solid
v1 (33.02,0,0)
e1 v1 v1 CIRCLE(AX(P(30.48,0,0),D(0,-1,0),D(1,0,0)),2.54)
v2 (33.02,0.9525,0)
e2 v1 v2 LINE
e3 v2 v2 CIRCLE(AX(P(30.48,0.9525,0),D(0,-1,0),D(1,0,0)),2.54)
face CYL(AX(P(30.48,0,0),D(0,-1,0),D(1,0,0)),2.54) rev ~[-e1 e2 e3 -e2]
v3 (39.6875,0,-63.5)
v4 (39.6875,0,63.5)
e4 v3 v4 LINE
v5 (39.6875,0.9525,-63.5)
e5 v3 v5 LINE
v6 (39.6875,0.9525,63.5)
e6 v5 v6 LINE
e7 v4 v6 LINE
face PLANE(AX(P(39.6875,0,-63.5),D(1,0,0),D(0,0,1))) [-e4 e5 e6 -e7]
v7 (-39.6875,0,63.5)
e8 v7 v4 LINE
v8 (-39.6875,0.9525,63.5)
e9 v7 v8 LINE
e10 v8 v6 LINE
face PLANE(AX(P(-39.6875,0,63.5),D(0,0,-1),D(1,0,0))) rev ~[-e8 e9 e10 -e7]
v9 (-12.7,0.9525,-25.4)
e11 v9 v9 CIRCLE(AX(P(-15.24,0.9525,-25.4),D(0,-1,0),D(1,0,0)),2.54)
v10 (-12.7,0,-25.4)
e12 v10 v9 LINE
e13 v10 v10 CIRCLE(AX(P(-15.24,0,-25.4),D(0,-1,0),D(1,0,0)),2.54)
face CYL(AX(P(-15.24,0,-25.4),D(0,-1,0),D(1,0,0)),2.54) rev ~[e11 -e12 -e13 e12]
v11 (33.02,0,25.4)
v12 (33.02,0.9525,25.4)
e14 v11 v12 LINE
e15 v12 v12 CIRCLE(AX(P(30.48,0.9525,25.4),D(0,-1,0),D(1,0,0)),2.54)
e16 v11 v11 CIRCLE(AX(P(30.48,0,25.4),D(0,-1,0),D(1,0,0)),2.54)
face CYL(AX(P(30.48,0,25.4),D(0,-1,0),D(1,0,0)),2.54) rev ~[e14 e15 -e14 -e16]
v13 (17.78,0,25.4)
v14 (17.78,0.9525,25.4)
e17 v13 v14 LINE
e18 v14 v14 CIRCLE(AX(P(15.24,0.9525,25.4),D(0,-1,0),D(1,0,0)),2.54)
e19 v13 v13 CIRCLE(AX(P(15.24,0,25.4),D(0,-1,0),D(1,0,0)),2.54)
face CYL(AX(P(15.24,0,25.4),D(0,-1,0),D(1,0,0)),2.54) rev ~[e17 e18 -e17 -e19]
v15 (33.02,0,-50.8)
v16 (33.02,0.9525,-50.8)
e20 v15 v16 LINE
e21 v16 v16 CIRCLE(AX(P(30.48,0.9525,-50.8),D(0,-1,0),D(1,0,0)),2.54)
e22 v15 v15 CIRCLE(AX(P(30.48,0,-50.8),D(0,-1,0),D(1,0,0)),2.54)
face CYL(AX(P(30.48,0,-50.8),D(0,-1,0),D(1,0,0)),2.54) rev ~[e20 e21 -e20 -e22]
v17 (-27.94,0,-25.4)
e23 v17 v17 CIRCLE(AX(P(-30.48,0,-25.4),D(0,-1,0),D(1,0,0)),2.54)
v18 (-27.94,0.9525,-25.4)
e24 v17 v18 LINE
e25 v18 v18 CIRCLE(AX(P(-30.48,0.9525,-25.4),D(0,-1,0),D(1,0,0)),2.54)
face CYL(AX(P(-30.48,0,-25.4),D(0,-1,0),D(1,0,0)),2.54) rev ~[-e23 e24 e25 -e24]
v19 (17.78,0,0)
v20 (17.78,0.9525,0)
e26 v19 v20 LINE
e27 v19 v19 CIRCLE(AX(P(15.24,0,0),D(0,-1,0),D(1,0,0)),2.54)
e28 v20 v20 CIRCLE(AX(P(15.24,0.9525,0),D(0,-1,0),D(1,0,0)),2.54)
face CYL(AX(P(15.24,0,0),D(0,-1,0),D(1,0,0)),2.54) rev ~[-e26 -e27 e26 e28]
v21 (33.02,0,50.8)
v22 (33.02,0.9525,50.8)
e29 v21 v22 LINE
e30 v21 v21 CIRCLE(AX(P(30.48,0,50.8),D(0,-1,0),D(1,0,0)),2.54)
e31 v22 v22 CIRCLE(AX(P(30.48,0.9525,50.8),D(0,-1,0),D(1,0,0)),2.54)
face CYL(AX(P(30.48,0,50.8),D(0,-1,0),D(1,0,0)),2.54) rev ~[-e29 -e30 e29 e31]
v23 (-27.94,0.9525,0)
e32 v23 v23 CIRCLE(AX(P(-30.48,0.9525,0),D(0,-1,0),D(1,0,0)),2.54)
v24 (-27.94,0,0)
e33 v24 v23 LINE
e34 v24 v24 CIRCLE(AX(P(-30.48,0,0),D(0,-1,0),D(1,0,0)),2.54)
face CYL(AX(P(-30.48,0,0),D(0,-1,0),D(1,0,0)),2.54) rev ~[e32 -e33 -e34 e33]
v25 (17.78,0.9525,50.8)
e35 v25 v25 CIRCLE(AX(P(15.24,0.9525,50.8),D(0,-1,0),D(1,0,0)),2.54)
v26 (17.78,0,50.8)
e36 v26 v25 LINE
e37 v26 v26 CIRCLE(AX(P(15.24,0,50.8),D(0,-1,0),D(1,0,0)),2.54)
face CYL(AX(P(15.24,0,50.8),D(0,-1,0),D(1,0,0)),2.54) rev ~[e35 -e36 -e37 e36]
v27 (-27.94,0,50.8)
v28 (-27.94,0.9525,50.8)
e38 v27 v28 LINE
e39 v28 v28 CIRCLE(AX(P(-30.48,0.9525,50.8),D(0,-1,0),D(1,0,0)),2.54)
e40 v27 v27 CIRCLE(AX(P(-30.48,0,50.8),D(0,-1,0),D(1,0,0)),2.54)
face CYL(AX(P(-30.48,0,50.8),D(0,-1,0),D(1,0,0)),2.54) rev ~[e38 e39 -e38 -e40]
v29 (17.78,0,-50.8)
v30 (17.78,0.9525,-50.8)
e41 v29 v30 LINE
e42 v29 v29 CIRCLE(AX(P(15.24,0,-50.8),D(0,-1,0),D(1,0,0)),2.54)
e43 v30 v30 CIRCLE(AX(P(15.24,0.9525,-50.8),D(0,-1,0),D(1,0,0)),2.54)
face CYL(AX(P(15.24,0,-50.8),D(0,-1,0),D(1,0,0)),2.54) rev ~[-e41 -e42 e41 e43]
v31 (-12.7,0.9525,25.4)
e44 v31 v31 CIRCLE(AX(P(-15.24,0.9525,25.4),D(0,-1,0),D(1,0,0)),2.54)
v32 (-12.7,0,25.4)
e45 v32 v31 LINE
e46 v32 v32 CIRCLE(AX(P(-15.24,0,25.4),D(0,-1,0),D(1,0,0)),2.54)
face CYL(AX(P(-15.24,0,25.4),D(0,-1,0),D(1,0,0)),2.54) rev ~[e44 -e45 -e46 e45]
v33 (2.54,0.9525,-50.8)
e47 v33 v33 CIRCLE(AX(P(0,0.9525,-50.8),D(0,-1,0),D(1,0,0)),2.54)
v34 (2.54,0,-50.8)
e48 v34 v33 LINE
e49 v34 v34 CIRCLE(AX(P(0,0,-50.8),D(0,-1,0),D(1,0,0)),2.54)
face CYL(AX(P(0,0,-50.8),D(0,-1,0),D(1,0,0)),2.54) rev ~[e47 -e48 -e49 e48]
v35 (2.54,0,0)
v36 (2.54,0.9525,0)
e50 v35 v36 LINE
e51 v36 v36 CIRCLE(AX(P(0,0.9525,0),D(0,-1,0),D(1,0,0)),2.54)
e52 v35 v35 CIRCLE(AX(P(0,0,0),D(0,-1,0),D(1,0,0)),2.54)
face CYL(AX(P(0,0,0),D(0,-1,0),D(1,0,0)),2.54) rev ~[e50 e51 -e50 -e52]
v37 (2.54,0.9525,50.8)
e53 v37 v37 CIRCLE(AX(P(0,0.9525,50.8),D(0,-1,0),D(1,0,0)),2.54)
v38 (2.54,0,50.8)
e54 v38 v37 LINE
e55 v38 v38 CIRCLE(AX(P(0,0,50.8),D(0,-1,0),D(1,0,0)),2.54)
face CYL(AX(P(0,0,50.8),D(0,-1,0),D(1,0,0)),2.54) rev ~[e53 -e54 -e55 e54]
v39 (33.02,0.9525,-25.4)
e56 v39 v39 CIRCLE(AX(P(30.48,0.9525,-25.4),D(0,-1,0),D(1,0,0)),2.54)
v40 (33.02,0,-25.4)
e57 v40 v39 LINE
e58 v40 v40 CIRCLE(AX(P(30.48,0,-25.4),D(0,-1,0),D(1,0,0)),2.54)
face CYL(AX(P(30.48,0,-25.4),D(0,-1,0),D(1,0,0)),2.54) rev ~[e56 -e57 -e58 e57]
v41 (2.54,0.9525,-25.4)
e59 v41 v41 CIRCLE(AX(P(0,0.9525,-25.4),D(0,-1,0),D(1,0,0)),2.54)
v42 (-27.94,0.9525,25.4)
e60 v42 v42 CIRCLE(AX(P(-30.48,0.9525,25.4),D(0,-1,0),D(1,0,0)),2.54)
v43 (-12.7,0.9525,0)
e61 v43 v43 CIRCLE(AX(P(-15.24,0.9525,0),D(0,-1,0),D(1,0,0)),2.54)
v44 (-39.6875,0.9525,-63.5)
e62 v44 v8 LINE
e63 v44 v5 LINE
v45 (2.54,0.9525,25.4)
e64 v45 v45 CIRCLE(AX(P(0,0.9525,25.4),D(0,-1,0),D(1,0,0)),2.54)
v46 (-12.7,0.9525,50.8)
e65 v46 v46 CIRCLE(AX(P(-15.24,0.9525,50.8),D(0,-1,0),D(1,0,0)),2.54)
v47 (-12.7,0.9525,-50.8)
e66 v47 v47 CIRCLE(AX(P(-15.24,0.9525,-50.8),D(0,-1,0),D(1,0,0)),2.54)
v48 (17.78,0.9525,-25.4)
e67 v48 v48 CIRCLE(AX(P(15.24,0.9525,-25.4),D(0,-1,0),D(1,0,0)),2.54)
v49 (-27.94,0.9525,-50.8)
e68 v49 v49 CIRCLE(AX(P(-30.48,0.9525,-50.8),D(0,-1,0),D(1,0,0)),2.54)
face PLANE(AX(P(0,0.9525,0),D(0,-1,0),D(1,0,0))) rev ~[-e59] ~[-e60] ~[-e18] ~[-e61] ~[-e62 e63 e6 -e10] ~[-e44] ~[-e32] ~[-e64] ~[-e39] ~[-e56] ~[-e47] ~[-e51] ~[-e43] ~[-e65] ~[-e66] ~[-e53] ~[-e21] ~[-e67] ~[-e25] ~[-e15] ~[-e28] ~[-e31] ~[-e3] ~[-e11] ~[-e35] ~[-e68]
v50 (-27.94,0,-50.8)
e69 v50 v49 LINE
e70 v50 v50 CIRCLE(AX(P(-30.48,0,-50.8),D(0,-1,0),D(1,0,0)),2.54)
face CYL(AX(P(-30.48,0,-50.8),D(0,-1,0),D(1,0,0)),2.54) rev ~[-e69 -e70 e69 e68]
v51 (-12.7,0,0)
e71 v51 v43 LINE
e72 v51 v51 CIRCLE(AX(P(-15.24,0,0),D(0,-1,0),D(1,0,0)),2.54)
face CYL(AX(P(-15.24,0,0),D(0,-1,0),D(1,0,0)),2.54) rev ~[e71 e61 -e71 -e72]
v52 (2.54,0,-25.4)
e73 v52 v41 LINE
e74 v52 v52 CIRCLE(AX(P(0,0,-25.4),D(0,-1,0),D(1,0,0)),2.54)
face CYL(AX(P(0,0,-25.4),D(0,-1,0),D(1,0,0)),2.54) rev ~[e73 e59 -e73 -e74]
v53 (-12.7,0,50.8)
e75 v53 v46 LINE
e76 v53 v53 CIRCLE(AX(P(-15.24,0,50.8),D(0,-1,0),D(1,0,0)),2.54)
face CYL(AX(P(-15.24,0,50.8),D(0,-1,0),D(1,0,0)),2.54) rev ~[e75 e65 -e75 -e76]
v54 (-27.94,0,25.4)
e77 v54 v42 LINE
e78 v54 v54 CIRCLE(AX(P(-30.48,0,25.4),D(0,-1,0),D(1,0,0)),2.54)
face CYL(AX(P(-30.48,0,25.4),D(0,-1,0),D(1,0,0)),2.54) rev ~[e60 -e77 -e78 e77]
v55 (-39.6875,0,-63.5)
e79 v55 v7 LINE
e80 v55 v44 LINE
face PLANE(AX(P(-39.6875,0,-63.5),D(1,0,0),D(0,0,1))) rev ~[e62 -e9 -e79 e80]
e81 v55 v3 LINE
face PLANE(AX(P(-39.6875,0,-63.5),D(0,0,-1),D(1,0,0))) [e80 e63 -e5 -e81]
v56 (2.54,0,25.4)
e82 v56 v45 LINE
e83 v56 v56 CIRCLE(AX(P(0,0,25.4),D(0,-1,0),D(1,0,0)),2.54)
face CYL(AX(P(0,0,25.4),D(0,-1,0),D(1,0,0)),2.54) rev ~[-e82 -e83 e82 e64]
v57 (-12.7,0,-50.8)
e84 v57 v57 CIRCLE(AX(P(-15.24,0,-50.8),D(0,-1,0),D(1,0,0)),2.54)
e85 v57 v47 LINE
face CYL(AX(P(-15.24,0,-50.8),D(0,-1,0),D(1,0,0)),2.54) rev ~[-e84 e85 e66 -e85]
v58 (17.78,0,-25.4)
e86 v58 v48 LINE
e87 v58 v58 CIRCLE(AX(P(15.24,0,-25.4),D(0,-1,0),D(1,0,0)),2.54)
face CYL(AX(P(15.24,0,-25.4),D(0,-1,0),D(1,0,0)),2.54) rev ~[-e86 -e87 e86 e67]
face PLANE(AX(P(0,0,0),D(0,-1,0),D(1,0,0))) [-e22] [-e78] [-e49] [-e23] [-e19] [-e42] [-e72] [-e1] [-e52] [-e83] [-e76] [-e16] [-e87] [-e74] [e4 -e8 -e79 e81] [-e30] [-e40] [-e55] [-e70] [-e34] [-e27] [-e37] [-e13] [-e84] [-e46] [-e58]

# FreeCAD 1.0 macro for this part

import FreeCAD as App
import Part
import Sketcher
Q = App.Units.Quantity


def add_polygon(sketch, points):
    """Adds a closed chain of lines whose ends are joined by coincident constraints."""
    first, n = sketch.GeometryCount, len(points)
    for a, b in zip(points, points[1:] + points[:1]):
        sketch.addGeometry(Part.LineSegment(App.Vector(*a, 0), App.Vector(*b, 0)), False)
    for i in range(n):
        sketch.addConstraint(Sketcher.Constraint("Coincident", first + i, 2, first + (i + 1) % n, 1))

doc = App.newDocument("Part")
body = doc.addObject("PartDesign::Body", "Body")

# Sketch on XZ plane
sketch1 = body.newObject("Sketcher::SketchObject", "Sketch")
sketch1.AttachmentSupport = (doc.getObject("XZ_Plane"), [""])
sketch1.MapMode = "FlatFace"
add_polygon(sketch1, [(-39.7, 63.5), (-39.7, -63.5), (39.7, -63.5), (39.7, 63.5)])  # lines 0-3
sketch1.addGeometry(Part.Circle(App.Vector(-30.5, -50.8, 0), App.Vector(0, 0, 1), 2.5), False)  # 4
sketch1.addGeometry(Part.Circle(App.Vector(-15.2, -50.8, 0), App.Vector(0, 0, 1), 2.5), False)  # 5
sketch1.addGeometry(Part.Circle(App.Vector(-30.5, -25.4, 0), App.Vector(0, 0, 1), 2.5), False)  # 6
sketch1.addGeometry(Part.Circle(App.Vector(-30.5, 0, 0), App.Vector(0, 0, 1), 2.5), False)  # 7
sketch1.addGeometry(Part.Circle(App.Vector(-15.2, -25.4, 0), App.Vector(0, 0, 1), 2.5), False)  # 8
sketch1.addGeometry(Part.Circle(App.Vector(-15.2, 0, 0), App.Vector(0, 0, 1), 2.5), False)  # 9
sketch1.addGeometry(Part.Circle(App.Vector(0, -50.8, 0), App.Vector(0, 0, 1), 2.5), False)  # 10
sketch1.addGeometry(Part.Circle(App.Vector(15.2, -50.8, 0), App.Vector(0, 0, 1), 2.5), False)  # 11
sketch1.addGeometry(Part.Circle(App.Vector(30.5, -50.8, 0), App.Vector(0, 0, 1), 2.5), False)  # 12
sketch1.addGeometry(Part.Circle(App.Vector(0, -25.4, 0), App.Vector(0, 0, 1), 2.5), False)  # 13
sketch1.addGeometry(Part.Circle(App.Vector(15.2, -25.4, 0), App.Vector(0, 0, 1), 2.5), False)  # 14
sketch1.addGeometry(Part.Circle(App.Vector(0, 0, 0), App.Vector(0, 0, 1), 2.5), False)  # 15
sketch1.addGeometry(Part.Circle(App.Vector(15.2, 0, 0), App.Vector(0, 0, 1), 2.5), False)  # 16
sketch1.addGeometry(Part.Circle(App.Vector(30.5, -25.4, 0), App.Vector(0, 0, 1), 2.5), False)  # 17
sketch1.addGeometry(Part.Circle(App.Vector(30.5, 0, 0), App.Vector(0, 0, 1), 2.5), False)  # 18
sketch1.addGeometry(Part.Circle(App.Vector(-30.5, 25.4, 0), App.Vector(0, 0, 1), 2.5), False)  # 19
sketch1.addGeometry(Part.Circle(App.Vector(-15.2, 25.4, 0), App.Vector(0, 0, 1), 2.5), False)  # 20
sketch1.addGeometry(Part.Circle(App.Vector(-30.5, 50.8, 0), App.Vector(0, 0, 1), 2.5), False)  # 21
sketch1.addGeometry(Part.Circle(App.Vector(-15.2, 50.8, 0), App.Vector(0, 0, 1), 2.5), False)  # 22
sketch1.addGeometry(Part.Circle(App.Vector(0, 25.4, 0), App.Vector(0, 0, 1), 2.5), False)  # 23
sketch1.addGeometry(Part.Circle(App.Vector(15.2, 25.4, 0), App.Vector(0, 0, 1), 2.5), False)  # 24
sketch1.addGeometry(Part.Circle(App.Vector(30.5, 25.4, 0), App.Vector(0, 0, 1), 2.5), False)  # 25
sketch1.addGeometry(Part.Circle(App.Vector(0, 50.8, 0), App.Vector(0, 0, 1), 2.5), False)  # 26
sketch1.addGeometry(Part.Circle(App.Vector(15.2, 50.8, 0), App.Vector(0, 0, 1), 2.5), False)  # 27
sketch1.addGeometry(Part.Circle(App.Vector(30.5, 50.8, 0), App.Vector(0, 0, 1), 2.5), False)  # 28
sketch1.addConstraint(Sketcher.Constraint("Vertical", 0))
sketch1.addConstraint(Sketcher.Constraint("Horizontal", 1))
sketch1.addConstraint(Sketcher.Constraint("Vertical", 2))
sketch1.addConstraint(Sketcher.Constraint("Horizontal", 3))
sketch1.addConstraint(Sketcher.Constraint("Coincident", 15, 3, -1, 1))
sketch1.addConstraint(Sketcher.Constraint("Equal", 4, 5))
sketch1.addConstraint(Sketcher.Constraint("Equal", 5, 6))
sketch1.addConstraint(Sketcher.Constraint("Equal", 6, 7))
sketch1.addConstraint(Sketcher.Constraint("Equal", 7, 8))
sketch1.addConstraint(Sketcher.Constraint("Equal", 8, 9))
sketch1.addConstraint(Sketcher.Constraint("Equal", 9, 10))
sketch1.addConstraint(Sketcher.Constraint("Equal", 10, 11))
sketch1.addConstraint(Sketcher.Constraint("Equal", 11, 12))
sketch1.addConstraint(Sketcher.Constraint("Equal", 12, 13))
sketch1.addConstraint(Sketcher.Constraint("Equal", 13, 14))
sketch1.addConstraint(Sketcher.Constraint("Equal", 14, 15))
sketch1.addConstraint(Sketcher.Constraint("Equal", 15, 16))
sketch1.addConstraint(Sketcher.Constraint("Equal", 16, 17))
sketch1.addConstraint(Sketcher.Constraint("Equal", 17, 18))
sketch1.addConstraint(Sketcher.Constraint("Equal", 18, 19))
sketch1.addConstraint(Sketcher.Constraint("Equal", 19, 20))
sketch1.addConstraint(Sketcher.Constraint("Equal", 20, 21))
sketch1.addConstraint(Sketcher.Constraint("Equal", 21, 22))
sketch1.addConstraint(Sketcher.Constraint("Equal", 22, 23))
sketch1.addConstraint(Sketcher.Constraint("Equal", 23, 24))
sketch1.addConstraint(Sketcher.Constraint("Equal", 24, 25))
sketch1.addConstraint(Sketcher.Constraint("Equal", 25, 26))
sketch1.addConstraint(Sketcher.Constraint("Equal", 26, 27))
sketch1.addConstraint(Sketcher.Constraint("Equal", 27, 28))
sketch1.addConstraint(Sketcher.Constraint("Symmetric", 9, 3, 16, 3, -1, 1))
sketch1.addConstraint(Sketcher.Constraint("Symmetric", 7, 3, 18, 3, -1, 1))
sketch1.addConstraint(Sketcher.Constraint("Symmetric", 17, 3, 19, 3, -1, 1))
sketch1.addConstraint(Sketcher.Constraint("Symmetric", 14, 3, 20, 3, -1, 1))
sketch1.addConstraint(Sketcher.Constraint("Symmetric", 12, 3, 21, 3, -1, 1))
sketch1.addConstraint(Sketcher.Constraint("Symmetric", 11, 3, 22, 3, -1, 1))
sketch1.addConstraint(Sketcher.Constraint("Symmetric", 13, 3, 23, 3, -1, 1))
sketch1.addConstraint(Sketcher.Constraint("Symmetric", 8, 3, 24, 3, -1, 1))
sketch1.addConstraint(Sketcher.Constraint("Symmetric", 6, 3, 25, 3, -1, 1))
sketch1.addConstraint(Sketcher.Constraint("Symmetric", 10, 3, 26, 3, -1, 1))
sketch1.addConstraint(Sketcher.Constraint("Symmetric", 5, 3, 27, 3, -1, 1))
sketch1.addConstraint(Sketcher.Constraint("Symmetric", 4, 3, 28, 3, -1, 1))
sketch1.addConstraint(Sketcher.Constraint("Symmetric", 0, 2, 2, 2, -1, 1))
sketch1.addConstraint(Sketcher.Constraint("Symmetric", 5, 3, 11, 3, -2))
sketch1.addConstraint(Sketcher.Constraint("Symmetric", 4, 3, 12, 3, -2))
sketch1.addConstraint(Sketcher.Constraint("Symmetric", 8, 3, 14, 3, -2))
sketch1.addConstraint(Sketcher.Constraint("Symmetric", 6, 3, 17, 3, -2))
sketch1.addConstraint(Sketcher.Constraint("PointOnObject", 7, 3, -1))
sketch1.addConstraint(Sketcher.Constraint("PointOnObject", 9, 3, -1))
sketch1.addConstraint(Sketcher.Constraint("PointOnObject", 10, 3, -2))
sketch1.addConstraint(Sketcher.Constraint("PointOnObject", 13, 3, -2))
sketch1.addConstraint(Sketcher.Constraint("Horizontal", 4, 3, 5, 3))
sketch1.addConstraint(Sketcher.Constraint("Horizontal", 6, 3, 8, 3))
sketch1.addConstraint(Sketcher.Constraint("Horizontal", 5, 3, 10, 3))
sketch1.addConstraint(Sketcher.Constraint("Horizontal", 8, 3, 13, 3))
sketch1.addConstraint(Sketcher.Constraint("Vertical", 4, 3, 6, 3))
sketch1.addConstraint(Sketcher.Constraint("Vertical", 6, 3, 7, 3))
sketch1.addConstraint(Sketcher.Constraint("Vertical", 5, 3, 8, 3))
sketch1.addConstraint(Sketcher.Constraint("Vertical", 8, 3, 9, 3))
sketch1.addConstraint(Sketcher.Constraint("Diameter", 4, Q("0.2 in")))
sketch1.addConstraint(Sketcher.Constraint("DistanceY", 0, 2, 0, 1, Q("5 in")))
sketch1.addConstraint(Sketcher.Constraint("DistanceY", 4, 3, -1, 1, Q("2 in")))
sketch1.addConstraint(Sketcher.Constraint("DistanceY", 6, 3, -1, 1, Q("1 in")))
sketch1.addConstraint(Sketcher.Constraint("DistanceX", 4, 3, -1, 1, Q("1.2 in")))
sketch1.addConstraint(Sketcher.Constraint("DistanceX", 5, 3, -1, 1, Q("0.6 in")))
sketch1.addConstraint(Sketcher.Constraint("DistanceX", 1, 1, 1, 2, Q("3.125 in")))
pad1 = body.newObject("PartDesign::Pad", "Pad")
pad1.Profile = sketch1
pad1.Length = Q("0.0375 in")
pad1.Reversed = True

doc.recompute()
